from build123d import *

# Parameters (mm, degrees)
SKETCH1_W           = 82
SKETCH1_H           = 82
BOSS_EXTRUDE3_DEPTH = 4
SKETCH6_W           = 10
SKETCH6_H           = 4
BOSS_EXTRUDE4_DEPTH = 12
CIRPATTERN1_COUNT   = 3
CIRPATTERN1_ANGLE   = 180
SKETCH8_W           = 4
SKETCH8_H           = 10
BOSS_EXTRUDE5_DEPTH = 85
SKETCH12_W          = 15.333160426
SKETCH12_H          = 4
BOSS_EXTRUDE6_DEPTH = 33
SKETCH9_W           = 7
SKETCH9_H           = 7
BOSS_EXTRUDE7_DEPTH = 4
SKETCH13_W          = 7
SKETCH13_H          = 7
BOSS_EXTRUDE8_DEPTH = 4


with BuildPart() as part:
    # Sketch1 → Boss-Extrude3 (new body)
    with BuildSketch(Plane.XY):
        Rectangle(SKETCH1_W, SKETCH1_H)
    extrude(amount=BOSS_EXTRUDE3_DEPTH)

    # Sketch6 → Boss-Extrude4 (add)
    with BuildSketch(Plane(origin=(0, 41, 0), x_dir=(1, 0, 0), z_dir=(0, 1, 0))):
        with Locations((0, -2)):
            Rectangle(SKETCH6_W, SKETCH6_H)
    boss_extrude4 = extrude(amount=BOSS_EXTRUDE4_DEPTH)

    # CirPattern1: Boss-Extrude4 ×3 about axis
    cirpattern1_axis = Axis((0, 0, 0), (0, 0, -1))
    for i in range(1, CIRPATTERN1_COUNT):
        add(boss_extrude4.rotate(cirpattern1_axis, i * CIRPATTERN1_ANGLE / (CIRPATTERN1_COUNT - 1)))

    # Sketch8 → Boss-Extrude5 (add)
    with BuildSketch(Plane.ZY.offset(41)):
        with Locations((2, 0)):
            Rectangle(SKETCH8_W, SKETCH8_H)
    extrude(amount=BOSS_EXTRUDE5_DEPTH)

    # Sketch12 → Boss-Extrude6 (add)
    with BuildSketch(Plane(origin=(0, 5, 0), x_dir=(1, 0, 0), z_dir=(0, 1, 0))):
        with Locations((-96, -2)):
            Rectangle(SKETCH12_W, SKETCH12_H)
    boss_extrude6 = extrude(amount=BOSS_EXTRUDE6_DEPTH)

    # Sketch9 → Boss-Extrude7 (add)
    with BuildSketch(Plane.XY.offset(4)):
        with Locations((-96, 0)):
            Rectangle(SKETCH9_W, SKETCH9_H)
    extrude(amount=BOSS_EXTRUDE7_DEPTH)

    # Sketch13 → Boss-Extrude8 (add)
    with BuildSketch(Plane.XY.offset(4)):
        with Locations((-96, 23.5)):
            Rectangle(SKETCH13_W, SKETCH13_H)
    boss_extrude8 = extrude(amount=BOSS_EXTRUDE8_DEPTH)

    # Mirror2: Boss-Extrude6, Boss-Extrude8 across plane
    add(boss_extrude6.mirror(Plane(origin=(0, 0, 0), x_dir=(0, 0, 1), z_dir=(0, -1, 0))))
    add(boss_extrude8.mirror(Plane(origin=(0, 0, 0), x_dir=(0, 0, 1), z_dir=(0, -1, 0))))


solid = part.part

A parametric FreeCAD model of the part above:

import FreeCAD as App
import Part
import Sketcher


def add_polygon(sketch, points):
    """Adds a closed chain of lines whose ends are joined by coincident constraints."""
    first, n = sketch.GeometryCount, len(points)
    for a, b in zip(points, points[1:] + points[:1]):
        sketch.addGeometry(Part.LineSegment(App.Vector(*a, 0), App.Vector(*b, 0)), False)
    for i in range(n):
        sketch.addConstraint(Sketcher.Constraint("Coincident", first + i, 2, first + (i + 1) % n, 1))

doc = App.newDocument("Part")
params = doc.addObject("Spreadsheet::Sheet", "Params")
for row, (alias, value) in enumerate([
    ("sketch1_width", "82 mm"),
    ("pad1_length", "4 mm"),
    ("sketch2_width", "10 mm"),
    ("sketch2_height", "4 mm"),
    ("pad2_length", "12 mm"),
    ("sketch3_width", "10 mm"),
    ("sketch3_height", "4 mm"),
    ("pad3_length", "85 mm"),
    ("sketch4_height", "4 mm"),
    ("pad4_length", "33 mm"),
    ("sketch5_width", "7 mm"),
    ("pad5_length", "4 mm"),
    ("sketch6_width", "7 mm"),
    ("pad6_length", "4 mm"),
], start=1):
    params.set(f"A{row}", alias)
    params.set(f"B{row}", "=" + value)
    params.setAlias(f"B{row}", alias)

body = doc.addObject("PartDesign::Body", "Body")

# Sketch on XY plane
sketch1 = doc.addObject("Sketcher::SketchObject", "Sketch")
body.addObject(sketch1)
sketch1.AttachmentSupport = (doc.XY_Plane, [""])
sketch1.MapMode = "FlatFace"
add_polygon(sketch1, [(-41, 41), (-41, -41), (41, -41), (41, 41)])  # lines 0-3
sketch1.addConstraint([
    Sketcher.Constraint("Vertical", 0),
    Sketcher.Constraint("Horizontal", 1),
    Sketcher.Constraint("Vertical", 2),
    Sketcher.Constraint("Horizontal", 3),
    Sketcher.Constraint("Symmetric", 0, 2, 2, 2, -1, 1),
    Sketcher.Constraint("Equal", 3, 0),
    Sketcher.Constraint("DistanceX", 1, 1, 1, 2, 82.0),
])
sketch1.setExpression("Constraints[10]", "Params.sketch1_width")
pad1 = doc.addObject("PartDesign::Pad", "Pad")
body.addObject(pad1)
pad1.Profile = sketch1
pad1.setExpression("Length", "Params.pad1_length")

# Sketch on XZ plane
sketch2 = doc.addObject("Sketcher::SketchObject", "Sketch001")
body.addObject(sketch2)
sketch2.AttachmentSupport = (doc.XZ_Plane, [""])
sketch2.MapMode = "FlatFace"
sketch2.AttachmentOffset = App.Placement(App.Vector(0, 0, -41), App.Rotation())
add_polygon(sketch2, [(-5, 0), (-5, 4), (5, 4), (5, 0)])  # lines 0-3
sketch2.addConstraint([
    Sketcher.Constraint("Vertical", 0),
    Sketcher.Constraint("Horizontal", 1),
    Sketcher.Constraint("Vertical", 2),
    Sketcher.Constraint("Horizontal", 3),
    Sketcher.Constraint("Symmetric", 2, 2, 3, 2, -1, 1),
    Sketcher.Constraint("DistanceX", 1, 1, 1, 2, 10.0),
    Sketcher.Constraint("DistanceY", 0, 1, 0, 2, 4.0),
])
sketch2.setExpression("Constraints[9]", "Params.sketch2_width")
sketch2.setExpression("Constraints[10]", "Params.sketch2_height")
pad2 = doc.addObject("PartDesign::Pad", "Pad001")
body.addObject(pad2)
pad2.Profile = sketch2
pad2.setExpression("Length", "Params.pad2_length")
pad2.Reversed = True
doc.recompute()

polarpattern = doc.addObject("PartDesign::PolarPattern", "PolarPattern")
body.addObject(polarpattern)
polarpattern.Originals = [pad2]
polarpattern.Axis = (doc.Z_Axis, [""])
polarpattern.Angle = 180
polarpattern.Occurrences = 3
polarpattern.Reversed = True
body.Tip = polarpattern

# Sketch on YZ plane
sketch3 = doc.addObject("Sketcher::SketchObject", "Sketch002")
body.addObject(sketch3)
sketch3.AttachmentSupport = (doc.YZ_Plane, [""])
sketch3.MapMode = "FlatFace"
sketch3.AttachmentOffset = App.Placement(App.Vector(0, 0, -41), App.Rotation())
add_polygon(sketch3, [(5, 0), (-5, 0), (-5, 4), (5, 4)])  # lines 0-3
sketch3.addConstraint([
    Sketcher.Constraint("Horizontal", 0),
    Sketcher.Constraint("Vertical", 1),
    Sketcher.Constraint("Horizontal", 2),
    Sketcher.Constraint("Vertical", 3),
    Sketcher.Constraint("Symmetric", 0, 2, 3, 2, -1, 1),
    Sketcher.Constraint("DistanceX", 0, 2, 0, 1, 10.0),
    Sketcher.Constraint("DistanceY", 1, 1, 1, 2, 4.0),
])
sketch3.setExpression("Constraints[9]", "Params.sketch3_width")
sketch3.setExpression("Constraints[10]", "Params.sketch3_height")
pad3 = doc.addObject("PartDesign::Pad", "Pad002")
body.addObject(pad3)
pad3.Profile = sketch3
pad3.setExpression("Length", "Params.pad3_length")
pad3.Reversed = True

# Sketch on XZ plane
sketch4 = doc.addObject("Sketcher::SketchObject", "Sketch003")
body.addObject(sketch4)
sketch4.AttachmentSupport = (doc.XZ_Plane, [""])
sketch4.MapMode = "FlatFace"
sketch4.AttachmentOffset = App.Placement(App.Vector(0, 0, -5), App.Rotation())
add_polygon(sketch4, [(-103.7, 0), (-103.7, 4), (-88.3, 4), (-88.3, 0)])  # lines 0-3
sketch4.addConstraint([
    Sketcher.Constraint("Vertical", 0),
    Sketcher.Constraint("Horizontal", 1),
    Sketcher.Constraint("Vertical", 2),
    Sketcher.Constraint("Horizontal", 3),
    Sketcher.Constraint("PointOnObject", 2, 2, -1),
    Sketcher.Constraint("DistanceY", 0, 1, 0, 2, 4.0),
    Sketcher.Constraint("DistanceX", 1, 1, 1, 2, 15.33316),
    Sketcher.Constraint("DistanceX", 0, 2, -1, 1, 103.66658),
])
sketch4.setExpression("Constraints[9]", "Params.sketch4_height")
pad4 = doc.addObject("PartDesign::Pad", "Pad003")
body.addObject(pad4)
pad4.Profile = sketch4
pad4.setExpression("Length", "Params.pad4_length")
pad4.Reversed = True

# Sketch on XY plane
sketch5 = doc.addObject("Sketcher::SketchObject", "Sketch004")
body.addObject(sketch5)
sketch5.AttachmentSupport = (doc.XY_Plane, [""])
sketch5.MapMode = "FlatFace"
sketch5.AttachmentOffset = App.Placement(App.Vector(0, 0, 4), App.Rotation())
add_polygon(sketch5, [(-100, 4), (-100, -4), (-92, -4), (-92, 4)])  # lines 0-3
sketch5.addConstraint([
    Sketcher.Constraint("Vertical", 0),
    Sketcher.Constraint("Horizontal", 1),
    Sketcher.Constraint("Vertical", 2),
    Sketcher.Constraint("Horizontal", 3),
    Sketcher.Constraint("Equal", 3, 0),
    Sketcher.Constraint("DistanceX", 1, 1, 1, 2, 7.0),
    Sketcher.Constraint("DistanceX", 0, 2, -1, 1, 99.5),
    Sketcher.Constraint("DistanceY", 0, 2, -1, 1, 3.5),
])
sketch5.setExpression("Constraints[9]", "Params.sketch5_width")
pad5 = doc.addObject("PartDesign::Pad", "Pad004")
body.addObject(pad5)
pad5.Profile = sketch5
pad5.setExpression("Length", "Params.pad5_length")

# Sketch on XY plane
sketch6 = doc.addObject("Sketcher::SketchObject", "Sketch005")
body.addObject(sketch6)
sketch6.AttachmentSupport = (doc.XY_Plane, [""])
sketch6.MapMode = "FlatFace"
sketch6.AttachmentOffset = App.Placement(App.Vector(0, 0, 4), App.Rotation())
add_polygon(sketch6, [(-100, 27), (-100, 20), (-92, 20), (-92, 27)])  # lines 0-3
sketch6.addConstraint([
    Sketcher.Constraint("Vertical", 0),
    Sketcher.Constraint("Horizontal", 1),
    Sketcher.Constraint("Vertical", 2),
    Sketcher.Constraint("Horizontal", 3),
    Sketcher.Constraint("Equal", 3, 0),
    Sketcher.Constraint("DistanceX", 1, 1, 1, 2, 7.0),
    Sketcher.Constraint("DistanceY", -1, 1, 0, 2, 20.0),
    Sketcher.Constraint("DistanceX", 0, 2, -1, 1, 99.5),
])
sketch6.setExpression("Constraints[9]", "Params.sketch6_width")
pad6 = doc.addObject("PartDesign::Pad", "Pad005")
body.addObject(pad6)
pad6.Profile = sketch6
pad6.setExpression("Length", "Params.pad6_length")
doc.recompute()

mirrored = doc.addObject("PartDesign::Mirrored", "Mirrored")
body.addObject(mirrored)
mirrored.Originals = [pad4, pad6]
mirrored.MirrorPlane = (doc.XZ_Plane, [""])
body.Tip = mirrored

doc.recompute()
